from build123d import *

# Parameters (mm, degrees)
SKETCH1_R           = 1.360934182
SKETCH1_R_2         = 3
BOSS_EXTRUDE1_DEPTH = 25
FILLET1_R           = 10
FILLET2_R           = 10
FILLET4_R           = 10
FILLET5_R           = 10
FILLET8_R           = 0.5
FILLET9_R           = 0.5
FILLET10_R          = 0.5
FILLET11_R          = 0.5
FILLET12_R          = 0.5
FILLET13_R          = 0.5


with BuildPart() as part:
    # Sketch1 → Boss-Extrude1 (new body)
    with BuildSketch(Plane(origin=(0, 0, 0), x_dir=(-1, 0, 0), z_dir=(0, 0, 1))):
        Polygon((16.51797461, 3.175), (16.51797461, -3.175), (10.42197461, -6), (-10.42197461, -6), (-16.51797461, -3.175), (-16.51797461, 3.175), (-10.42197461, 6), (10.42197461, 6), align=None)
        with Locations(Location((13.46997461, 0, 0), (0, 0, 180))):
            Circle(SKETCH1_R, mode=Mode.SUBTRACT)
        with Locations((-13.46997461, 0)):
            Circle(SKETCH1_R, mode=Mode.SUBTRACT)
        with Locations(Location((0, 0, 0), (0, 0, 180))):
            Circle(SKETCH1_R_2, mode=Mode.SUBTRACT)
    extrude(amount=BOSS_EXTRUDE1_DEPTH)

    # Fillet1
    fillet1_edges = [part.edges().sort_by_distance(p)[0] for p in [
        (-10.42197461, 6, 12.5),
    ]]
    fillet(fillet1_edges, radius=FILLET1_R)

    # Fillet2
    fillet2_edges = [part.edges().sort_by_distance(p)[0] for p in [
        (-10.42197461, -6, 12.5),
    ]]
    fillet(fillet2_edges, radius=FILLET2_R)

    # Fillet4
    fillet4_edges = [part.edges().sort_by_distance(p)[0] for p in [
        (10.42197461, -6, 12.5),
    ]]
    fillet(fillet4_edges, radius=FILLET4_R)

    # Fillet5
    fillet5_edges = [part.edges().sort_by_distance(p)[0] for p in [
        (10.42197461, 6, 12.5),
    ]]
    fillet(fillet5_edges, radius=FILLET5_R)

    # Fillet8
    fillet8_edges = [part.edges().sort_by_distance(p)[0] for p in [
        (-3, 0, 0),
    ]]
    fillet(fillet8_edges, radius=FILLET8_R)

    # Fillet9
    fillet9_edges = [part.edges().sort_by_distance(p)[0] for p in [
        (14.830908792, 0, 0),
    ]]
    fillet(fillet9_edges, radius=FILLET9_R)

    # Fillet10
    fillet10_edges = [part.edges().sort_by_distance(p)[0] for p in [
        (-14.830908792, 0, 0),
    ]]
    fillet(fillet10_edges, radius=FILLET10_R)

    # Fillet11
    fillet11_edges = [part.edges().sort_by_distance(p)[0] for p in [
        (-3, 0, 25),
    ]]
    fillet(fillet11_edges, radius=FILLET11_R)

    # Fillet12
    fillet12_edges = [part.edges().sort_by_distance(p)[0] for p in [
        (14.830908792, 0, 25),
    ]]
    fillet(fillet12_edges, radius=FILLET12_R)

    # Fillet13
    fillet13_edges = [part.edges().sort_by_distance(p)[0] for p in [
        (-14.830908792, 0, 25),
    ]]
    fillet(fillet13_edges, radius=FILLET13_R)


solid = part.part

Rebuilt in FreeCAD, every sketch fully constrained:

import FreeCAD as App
import Part
import Sketcher
Q = App.Units.Quantity


def edges_at(feature, points):
    """Names of the edges that pass closest to the given points."""
    edges = feature.Shape.Edges
    near = lambda p: min(range(len(edges)), key=lambda i: edges[i].distToShape(Part.Vertex(*p))[0])
    return sorted({f"Edge{near(p) + 1}" for p in points})


def add_polygon(sketch, points):
    """Adds a closed chain of lines whose ends are joined by coincident constraints."""
    first, n = sketch.GeometryCount, len(points)
    for a, b in zip(points, points[1:] + points[:1]):
        sketch.addGeometry(Part.LineSegment(App.Vector(*a, 0), App.Vector(*b, 0)), False)
    for i in range(n):
        sketch.addConstraint(Sketcher.Constraint("Coincident", first + i, 2, first + (i + 1) % n, 1))

doc = App.newDocument("Part")
body = doc.addObject("PartDesign::Body", "Body")

sketch1 = body.newObject("Sketcher::SketchObject", "Sketch")
sketch1.AttachmentSupport = (doc.getObject("XY_Plane"), [""])
sketch1.MapMode = "FlatFace"
add_polygon(sketch1, [(-16.5, 3.2), (-16.5, -3.2), (-10.4, -6), (10.4, -6), (16.5, -3.2), (16.5, 3.2), (10.4, 6), (-10.4, 6)])
sketch1.addGeometry(Part.Circle(App.Vector(-13.5, 0, 0), App.Vector(0, 0, 1), 1.4), False)
sketch1.addGeometry(Part.Circle(App.Vector(0, 0, 0), App.Vector(0, 0, 1), 3), False)
sketch1.addGeometry(Part.Circle(App.Vector(13.5, 0, 0), App.Vector(0, 0, 1), 1.4), False)
sketch1.addConstraint([
    Sketcher.Constraint("Vertical", 0),
    Sketcher.Constraint("Horizontal", 2),
    Sketcher.Constraint("Vertical", 4),
    Sketcher.Constraint("Horizontal", 6),
    Sketcher.Constraint("Coincident", 9, 3, -1, 1),
    Sketcher.Constraint("Equal", 8, 10),
    Sketcher.Constraint("Symmetric", 8, 3, 10, 3, -1, 1),
    Sketcher.Constraint("Symmetric", 0, 2, 4, 2, -1, 1),
    Sketcher.Constraint("Symmetric", 1, 2, 5, 2, -1, 1),
    Sketcher.Constraint("PointOnObject", 8, 3, -1),
    Sketcher.Constraint("Parallel", 3, 7),
    Sketcher.Constraint("Horizontal", 0, 2, 3, 2),
    Sketcher.Constraint("Horizontal", 4, 2, 7, 2),
    Sketcher.Constraint("Vertical", 2, 2, 5, 2),
    Sketcher.Constraint("Diameter", 9, Q("6 mm")),
    Sketcher.Constraint("DistanceY", 1, 2, -1, 1, Q("6 mm")),
    Sketcher.Constraint("DistanceY", 0, 2, 0, 1, Q("6.35 mm")),
    Sketcher.Constraint("Diameter", 8, Q("2.721868 mm")),
    Sketcher.Constraint("DistanceX", 0, 2, 8, 3, Q("3.048 mm")),
    Sketcher.Constraint("DistanceX", 0, 2, 1, 2, Q("6.096 mm")),
    Sketcher.Constraint("DistanceX", 2, 1, 2, 2, Q("20.843949 mm")),
])
pad1 = body.newObject("PartDesign::Pad", "Pad")
pad1.Profile = sketch1
pad1.Length = 25
doc.recompute()

fillet = body.newObject("PartDesign::Fillet", "Fillet")
fillet.Base = (pad1, edges_at(pad1, [(-10.422, 6, 12.5)]))
fillet.Radius = 10
doc.recompute()

fillet2 = body.newObject("PartDesign::Fillet", "Fillet001")
fillet2.Base = (fillet, edges_at(fillet, [(-10.422, -6, 12.5)]))
fillet2.Radius = 10
doc.recompute()

fillet3 = body.newObject("PartDesign::Fillet", "Fillet002")
fillet3.Base = (fillet2, edges_at(fillet2, [(10.422, -6, 12.5)]))
fillet3.Radius = 10
doc.recompute()

fillet4 = body.newObject("PartDesign::Fillet", "Fillet003")
fillet4.Base = (fillet3, edges_at(fillet3, [(10.422, 6, 12.5)]))
fillet4.Radius = 10
doc.recompute()

fillet5 = body.newObject("PartDesign::Fillet", "Fillet004")
fillet5.Base = (fillet4, edges_at(fillet4, [(-3, 0, 0)]))
fillet5.Radius = 0.5
doc.recompute()

fillet6 = body.newObject("PartDesign::Fillet", "Fillet005")
fillet6.Base = (fillet5, edges_at(fillet5, [(14.831, 0, 0)]))
fillet6.Radius = 0.5
doc.recompute()

fillet7 = body.newObject("PartDesign::Fillet", "Fillet006")
fillet7.Base = (fillet6, edges_at(fillet6, [(-14.831, 0, 0)]))
fillet7.Radius = 0.5
doc.recompute()

fillet8 = body.newObject("PartDesign::Fillet", "Fillet007")
fillet8.Base = (fillet7, edges_at(fillet7, [(-3, 0, 25)]))
fillet8.Radius = 0.5
doc.recompute()

fillet9 = body.newObject("PartDesign::Fillet", "Fillet008")
fillet9.Base = (fillet8, edges_at(fillet8, [(14.831, 0, 25)]))
fillet9.Radius = 0.5
doc.recompute()

fillet10 = body.newObject("PartDesign::Fillet", "Fillet009")
fillet10.Base = (fillet9, edges_at(fillet9, [(-14.831, 0, 25)]))
fillet10.Radius = 0.5

doc.recompute()
